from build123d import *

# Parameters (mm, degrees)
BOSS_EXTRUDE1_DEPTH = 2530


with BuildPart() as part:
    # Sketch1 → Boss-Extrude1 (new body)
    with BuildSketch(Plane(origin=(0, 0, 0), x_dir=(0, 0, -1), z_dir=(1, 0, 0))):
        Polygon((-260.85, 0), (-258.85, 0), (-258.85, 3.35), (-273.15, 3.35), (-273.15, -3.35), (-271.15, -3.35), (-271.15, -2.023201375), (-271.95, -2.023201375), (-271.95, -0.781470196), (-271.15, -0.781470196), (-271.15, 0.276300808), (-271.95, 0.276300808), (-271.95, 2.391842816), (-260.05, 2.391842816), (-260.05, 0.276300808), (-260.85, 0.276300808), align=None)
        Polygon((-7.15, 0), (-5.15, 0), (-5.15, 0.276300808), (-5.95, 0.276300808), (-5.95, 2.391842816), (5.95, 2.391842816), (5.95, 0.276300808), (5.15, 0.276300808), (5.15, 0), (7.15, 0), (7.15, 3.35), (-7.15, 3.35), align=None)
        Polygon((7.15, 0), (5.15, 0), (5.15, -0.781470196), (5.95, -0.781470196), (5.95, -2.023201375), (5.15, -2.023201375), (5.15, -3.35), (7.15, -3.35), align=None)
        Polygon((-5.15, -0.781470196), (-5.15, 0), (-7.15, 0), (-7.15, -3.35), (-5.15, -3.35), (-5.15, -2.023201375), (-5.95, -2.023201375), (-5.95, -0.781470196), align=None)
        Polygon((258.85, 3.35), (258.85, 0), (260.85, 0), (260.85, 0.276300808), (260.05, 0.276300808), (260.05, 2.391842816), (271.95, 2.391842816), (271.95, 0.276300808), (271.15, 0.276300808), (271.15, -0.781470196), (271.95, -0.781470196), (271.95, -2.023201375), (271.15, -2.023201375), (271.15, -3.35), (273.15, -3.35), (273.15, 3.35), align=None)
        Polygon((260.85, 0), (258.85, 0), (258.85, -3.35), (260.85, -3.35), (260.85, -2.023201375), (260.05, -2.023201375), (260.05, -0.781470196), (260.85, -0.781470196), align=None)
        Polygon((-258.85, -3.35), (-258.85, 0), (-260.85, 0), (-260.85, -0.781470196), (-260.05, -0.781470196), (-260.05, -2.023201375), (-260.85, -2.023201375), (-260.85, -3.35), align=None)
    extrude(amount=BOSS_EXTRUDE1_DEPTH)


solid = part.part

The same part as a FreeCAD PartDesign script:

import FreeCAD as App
import Part
import Sketcher
Q = App.Units.Quantity

doc = App.newDocument("Part")
body = doc.addObject("PartDesign::Body", "Body")
body.AllowCompound = True

sketch1 = doc.addObject("Sketcher::SketchObject", "Sketch")
body.addObject(sketch1)
sketch1.AttachmentSupport = (doc.YZ_Plane, [""])
sketch1.MapMode = "FlatFace"
sketch1.addGeometry(Part.LineSegment(App.Vector(3.4, 258.9, 0), App.Vector(3.4, 273.1, 0)), False)
sketch1.addGeometry(Part.LineSegment(App.Vector(3.4, 273.1, 0), App.Vector(-3.4, 273.1, 0)), False)
sketch1.addGeometry(Part.LineSegment(App.Vector(-3.4, 273.1, 0), App.Vector(-3.4, 271.1, 0)), False)
sketch1.addGeometry(Part.LineSegment(App.Vector(-3.4, 271.1, 0), App.Vector(-2, 271.1, 0)), False)
sketch1.addGeometry(Part.LineSegment(App.Vector(-2, 271.1, 0), App.Vector(-2, 271.9, 0)), False)
sketch1.addGeometry(Part.LineSegment(App.Vector(-2, 271.9, 0), App.Vector(-0.8, 271.9, 0)), False)
sketch1.addGeometry(Part.LineSegment(App.Vector(-0.8, 271.9, 0), App.Vector(-0.8, 271.1, 0)), False)
sketch1.addGeometry(Part.LineSegment(App.Vector(-0.8, 271.1, 0), App.Vector(0.3, 271.1, 0)), False)
sketch1.addGeometry(Part.LineSegment(App.Vector(0.3, 271.1, 0), App.Vector(0.3, 271.9, 0)), False)
sketch1.addGeometry(Part.LineSegment(App.Vector(0.3, 271.9, 0), App.Vector(2.4, 271.9, 0)), False)
sketch1.addGeometry(Part.LineSegment(App.Vector(2.4, 271.9, 0), App.Vector(2.4, 260.1, 0)), False)
sketch1.addGeometry(Part.LineSegment(App.Vector(2.4, 260.1, 0), App.Vector(0.3, 260.1, 0)), False)
sketch1.addGeometry(Part.LineSegment(App.Vector(0.3, 260.1, 0), App.Vector(0.3, 260.9, 0)), False)
sketch1.addGeometry(Part.LineSegment(App.Vector(0.3, 260.9, 0), App.Vector(-0.8, 260.9, 0)), False)
sketch1.addGeometry(Part.LineSegment(App.Vector(-0.8, 260.9, 0), App.Vector(-0.8, 260.1, 0)), False)
sketch1.addGeometry(Part.LineSegment(App.Vector(-0.8, 260.1, 0), App.Vector(-2, 260.1, 0)), False)
sketch1.addGeometry(Part.LineSegment(App.Vector(-2, 260.1, 0), App.Vector(-2, 260.9, 0)), False)
sketch1.addGeometry(Part.LineSegment(App.Vector(-2, 260.9, 0), App.Vector(-3.4, 260.9, 0)), False)
sketch1.addGeometry(Part.LineSegment(App.Vector(-3.4, 260.9, 0), App.Vector(-3.4, 258.9, 0)), False)
sketch1.addGeometry(Part.LineSegment(App.Vector(-3.4, 258.9, 0), App.Vector(3.4, 258.9, 0)), False)
sketch1.addGeometry(Part.LineSegment(App.Vector(0.3, 5.2, 0), App.Vector(0.3, 6, 0)), False)
sketch1.addGeometry(Part.LineSegment(App.Vector(0.3, 6, 0), App.Vector(2.4, 6, 0)), False)
sketch1.addGeometry(Part.LineSegment(App.Vector(2.4, 6, 0), App.Vector(2.4, -6, 0)), False)
sketch1.addGeometry(Part.LineSegment(App.Vector(2.4, -6, 0), App.Vector(0.3, -6, 0)), False)
sketch1.addGeometry(Part.LineSegment(App.Vector(0.3, -6, 0), App.Vector(0.3, -5.2, 0)), False)
sketch1.addGeometry(Part.LineSegment(App.Vector(0.3, -5.2, 0), App.Vector(-0.8, -5.2, 0)), False)
sketch1.addGeometry(Part.LineSegment(App.Vector(-0.8, -5.2, 0), App.Vector(-0.8, -6, 0)), False)
sketch1.addGeometry(Part.LineSegment(App.Vector(-0.8, -6, 0), App.Vector(-2, -6, 0)), False)
sketch1.addGeometry(Part.LineSegment(App.Vector(-2, -6, 0), App.Vector(-2, -5.2, 0)), False)
sketch1.addGeometry(Part.LineSegment(App.Vector(-2, -5.2, 0), App.Vector(-3.4, -5.2, 0)), False)
sketch1.addGeometry(Part.LineSegment(App.Vector(-3.4, -5.2, 0), App.Vector(-3.4, -7.2, 0)), False)
sketch1.addGeometry(Part.LineSegment(App.Vector(-3.4, -7.2, 0), App.Vector(3.4, -7.2, 0)), False)
sketch1.addGeometry(Part.LineSegment(App.Vector(3.4, -7.2, 0), App.Vector(3.4, 7.2, 0)), False)
sketch1.addGeometry(Part.LineSegment(App.Vector(3.4, 7.2, 0), App.Vector(-3.4, 7.2, 0)), False)
sketch1.addGeometry(Part.LineSegment(App.Vector(-3.4, 7.2, 0), App.Vector(-3.4, 5.2, 0)), False)
sketch1.addGeometry(Part.LineSegment(App.Vector(-3.4, 5.2, 0), App.Vector(-2, 5.2, 0)), False)
sketch1.addGeometry(Part.LineSegment(App.Vector(-2, 5.2, 0), App.Vector(-2, 6, 0)), False)
sketch1.addGeometry(Part.LineSegment(App.Vector(-2, 6, 0), App.Vector(-0.8, 6, 0)), False)
sketch1.addGeometry(Part.LineSegment(App.Vector(-0.8, 6, 0), App.Vector(-0.8, 5.2, 0)), False)
sketch1.addGeometry(Part.LineSegment(App.Vector(-0.8, 5.2, 0), App.Vector(0.3, 5.2, 0)), False)
sketch1.addGeometry(Part.LineSegment(App.Vector(3.4, -258.9, 0), App.Vector(-3.4, -258.9, 0)), False)
sketch1.addGeometry(Part.LineSegment(App.Vector(-3.4, -258.9, 0), App.Vector(-3.4, -260.9, 0)), False)
sketch1.addGeometry(Part.LineSegment(App.Vector(-3.4, -260.9, 0), App.Vector(-2, -260.9, 0)), False)
sketch1.addGeometry(Part.LineSegment(App.Vector(-2, -260.9, 0), App.Vector(-2, -260.1, 0)), False)
sketch1.addGeometry(Part.LineSegment(App.Vector(-2, -260.1, 0), App.Vector(-0.8, -260.1, 0)), False)
sketch1.addGeometry(Part.LineSegment(App.Vector(-0.8, -260.1, 0), App.Vector(-0.8, -260.9, 0)), False)
sketch1.addGeometry(Part.LineSegment(App.Vector(-0.8, -260.9, 0), App.Vector(0.3, -260.9, 0)), False)
sketch1.addGeometry(Part.LineSegment(App.Vector(0.3, -260.9, 0), App.Vector(0.3, -260.1, 0)), False)
sketch1.addGeometry(Part.LineSegment(App.Vector(0.3, -260.1, 0), App.Vector(2.4, -260.1, 0)), False)
sketch1.addGeometry(Part.LineSegment(App.Vector(2.4, -260.1, 0), App.Vector(2.4, -271.9, 0)), False)
sketch1.addGeometry(Part.LineSegment(App.Vector(2.4, -271.9, 0), App.Vector(0.3, -271.9, 0)), False)
sketch1.addGeometry(Part.LineSegment(App.Vector(0.3, -271.9, 0), App.Vector(0.3, -271.1, 0)), False)
sketch1.addGeometry(Part.LineSegment(App.Vector(0.3, -271.1, 0), App.Vector(-0.8, -271.1, 0)), False)
sketch1.addGeometry(Part.LineSegment(App.Vector(-0.8, -271.1, 0), App.Vector(-0.8, -271.9, 0)), False)
sketch1.addGeometry(Part.LineSegment(App.Vector(-0.8, -271.9, 0), App.Vector(-2, -271.9, 0)), False)
sketch1.addGeometry(Part.LineSegment(App.Vector(-2, -271.9, 0), App.Vector(-2, -271.1, 0)), False)
sketch1.addGeometry(Part.LineSegment(App.Vector(-2, -271.1, 0), App.Vector(-3.4, -271.1, 0)), False)
sketch1.addGeometry(Part.LineSegment(App.Vector(-3.4, -271.1, 0), App.Vector(-3.4, -273.1, 0)), False)
sketch1.addGeometry(Part.LineSegment(App.Vector(-3.4, -273.1, 0), App.Vector(3.4, -273.1, 0)), False)
sketch1.addGeometry(Part.LineSegment(App.Vector(3.4, -273.1, 0), App.Vector(3.4, -258.9, 0)), False)
sketch1.addConstraint(Sketcher.Constraint("Coincident", 0, 2, 1, 1))
sketch1.addConstraint(Sketcher.Constraint("Coincident", 1, 2, 2, 1))
sketch1.addConstraint(Sketcher.Constraint("Coincident", 2, 2, 3, 1))
sketch1.addConstraint(Sketcher.Constraint("Coincident", 3, 2, 4, 1))
sketch1.addConstraint(Sketcher.Constraint("Coincident", 4, 2, 5, 1))
sketch1.addConstraint(Sketcher.Constraint("Coincident", 5, 2, 6, 1))
sketch1.addConstraint(Sketcher.Constraint("Coincident", 6, 2, 7, 1))
sketch1.addConstraint(Sketcher.Constraint("Coincident", 7, 2, 8, 1))
sketch1.addConstraint(Sketcher.Constraint("Coincident", 8, 2, 9, 1))
sketch1.addConstraint(Sketcher.Constraint("Coincident", 9, 2, 10, 1))
sketch1.addConstraint(Sketcher.Constraint("Coincident", 10, 2, 11, 1))
sketch1.addConstraint(Sketcher.Constraint("Coincident", 11, 2, 12, 1))
sketch1.addConstraint(Sketcher.Constraint("Coincident", 12, 2, 13, 1))
sketch1.addConstraint(Sketcher.Constraint("Coincident", 13, 2, 14, 1))
sketch1.addConstraint(Sketcher.Constraint("Coincident", 14, 2, 15, 1))
sketch1.addConstraint(Sketcher.Constraint("Coincident", 15, 2, 16, 1))
sketch1.addConstraint(Sketcher.Constraint("Coincident", 16, 2, 17, 1))
sketch1.addConstraint(Sketcher.Constraint("Coincident", 17, 2, 18, 1))
sketch1.addConstraint(Sketcher.Constraint("Coincident", 18, 2, 19, 1))
sketch1.addConstraint(Sketcher.Constraint("Coincident", 19, 2, 0, 1))
sketch1.addConstraint(Sketcher.Constraint("Coincident", 20, 2, 21, 1))
sketch1.addConstraint(Sketcher.Constraint("Coincident", 21, 2, 22, 1))
sketch1.addConstraint(Sketcher.Constraint("Coincident", 22, 2, 23, 1))
sketch1.addConstraint(Sketcher.Constraint("Coincident", 23, 2, 24, 1))
sketch1.addConstraint(Sketcher.Constraint("Coincident", 24, 2, 25, 1))
sketch1.addConstraint(Sketcher.Constraint("Coincident", 25, 2, 26, 1))
sketch1.addConstraint(Sketcher.Constraint("Coincident", 26, 2, 27, 1))
sketch1.addConstraint(Sketcher.Constraint("Coincident", 27, 2, 28, 1))
sketch1.addConstraint(Sketcher.Constraint("Coincident", 28, 2, 29, 1))
sketch1.addConstraint(Sketcher.Constraint("Coincident", 29, 2, 30, 1))
sketch1.addConstraint(Sketcher.Constraint("Coincident", 30, 2, 31, 1))
sketch1.addConstraint(Sketcher.Constraint("Coincident", 31, 2, 32, 1))
sketch1.addConstraint(Sketcher.Constraint("Coincident", 32, 2, 33, 1))
sketch1.addConstraint(Sketcher.Constraint("Coincident", 33, 2, 34, 1))
sketch1.addConstraint(Sketcher.Constraint("Coincident", 34, 2, 35, 1))
sketch1.addConstraint(Sketcher.Constraint("Coincident", 35, 2, 36, 1))
sketch1.addConstraint(Sketcher.Constraint("Coincident", 36, 2, 37, 1))
sketch1.addConstraint(Sketcher.Constraint("Coincident", 37, 2, 38, 1))
sketch1.addConstraint(Sketcher.Constraint("Coincident", 38, 2, 39, 1))
sketch1.addConstraint(Sketcher.Constraint("Coincident", 39, 2, 20, 1))
sketch1.addConstraint(Sketcher.Constraint("Coincident", 40, 2, 41, 1))
sketch1.addConstraint(Sketcher.Constraint("Coincident", 41, 2, 42, 1))
sketch1.addConstraint(Sketcher.Constraint("Coincident", 42, 2, 43, 1))
sketch1.addConstraint(Sketcher.Constraint("Coincident", 43, 2, 44, 1))
sketch1.addConstraint(Sketcher.Constraint("Coincident", 44, 2, 45, 1))
sketch1.addConstraint(Sketcher.Constraint("Coincident", 45, 2, 46, 1))
sketch1.addConstraint(Sketcher.Constraint("Coincident", 46, 2, 47, 1))
sketch1.addConstraint(Sketcher.Constraint("Coincident", 47, 2, 48, 1))
sketch1.addConstraint(Sketcher.Constraint("Coincident", 48, 2, 49, 1))
sketch1.addConstraint(Sketcher.Constraint("Coincident", 49, 2, 50, 1))
sketch1.addConstraint(Sketcher.Constraint("Coincident", 50, 2, 51, 1))
sketch1.addConstraint(Sketcher.Constraint("Coincident", 51, 2, 52, 1))
sketch1.addConstraint(Sketcher.Constraint("Coincident", 52, 2, 53, 1))
sketch1.addConstraint(Sketcher.Constraint("Coincident", 53, 2, 54, 1))
sketch1.addConstraint(Sketcher.Constraint("Coincident", 54, 2, 55, 1))
sketch1.addConstraint(Sketcher.Constraint("Coincident", 55, 2, 56, 1))
sketch1.addConstraint(Sketcher.Constraint("Coincident", 56, 2, 57, 1))
sketch1.addConstraint(Sketcher.Constraint("Coincident", 57, 2, 58, 1))
sketch1.addConstraint(Sketcher.Constraint("Coincident", 58, 2, 59, 1))
sketch1.addConstraint(Sketcher.Constraint("Coincident", 59, 2, 40, 1))
sketch1.addConstraint(Sketcher.Constraint("Vertical", 0))
sketch1.addConstraint(Sketcher.Constraint("Horizontal", 1))
sketch1.addConstraint(Sketcher.Constraint("Vertical", 2))
sketch1.addConstraint(Sketcher.Constraint("Horizontal", 3))
sketch1.addConstraint(Sketcher.Constraint("Vertical", 4))
sketch1.addConstraint(Sketcher.Constraint("Horizontal", 5))
sketch1.addConstraint(Sketcher.Constraint("Vertical", 6))
sketch1.addConstraint(Sketcher.Constraint("Horizontal", 7))
sketch1.addConstraint(Sketcher.Constraint("Vertical", 8))
sketch1.addConstraint(Sketcher.Constraint("Horizontal", 9))
sketch1.addConstraint(Sketcher.Constraint("Vertical", 10))
sketch1.addConstraint(Sketcher.Constraint("Horizontal", 11))
sketch1.addConstraint(Sketcher.Constraint("Vertical", 12))
sketch1.addConstraint(Sketcher.Constraint("Horizontal", 13))
sketch1.addConstraint(Sketcher.Constraint("Vertical", 14))
sketch1.addConstraint(Sketcher.Constraint("Horizontal", 15))
sketch1.addConstraint(Sketcher.Constraint("Vertical", 16))
sketch1.addConstraint(Sketcher.Constraint("Horizontal", 17))
sketch1.addConstraint(Sketcher.Constraint("Vertical", 18))
sketch1.addConstraint(Sketcher.Constraint("Horizontal", 19))
sketch1.addConstraint(Sketcher.Constraint("Vertical", 20))
sketch1.addConstraint(Sketcher.Constraint("Horizontal", 21))
sketch1.addConstraint(Sketcher.Constraint("Vertical", 22))
sketch1.addConstraint(Sketcher.Constraint("Horizontal", 23))
sketch1.addConstraint(Sketcher.Constraint("Vertical", 24))
sketch1.addConstraint(Sketcher.Constraint("Horizontal", 25))
sketch1.addConstraint(Sketcher.Constraint("Vertical", 26))
sketch1.addConstraint(Sketcher.Constraint("Horizontal", 27))
sketch1.addConstraint(Sketcher.Constraint("Vertical", 28))
sketch1.addConstraint(Sketcher.Constraint("Horizontal", 29))
sketch1.addConstraint(Sketcher.Constraint("Vertical", 30))
sketch1.addConstraint(Sketcher.Constraint("Horizontal", 31))
sketch1.addConstraint(Sketcher.Constraint("Vertical", 32))
sketch1.addConstraint(Sketcher.Constraint("Horizontal", 33))
sketch1.addConstraint(Sketcher.Constraint("Vertical", 34))
sketch1.addConstraint(Sketcher.Constraint("Horizontal", 35))
sketch1.addConstraint(Sketcher.Constraint("Vertical", 36))
sketch1.addConstraint(Sketcher.Constraint("Horizontal", 37))
sketch1.addConstraint(Sketcher.Constraint("Vertical", 38))
sketch1.addConstraint(Sketcher.Constraint("Horizontal", 39))
sketch1.addConstraint(Sketcher.Constraint("Horizontal", 40))
sketch1.addConstraint(Sketcher.Constraint("Vertical", 41))
sketch1.addConstraint(Sketcher.Constraint("Horizontal", 42))
sketch1.addConstraint(Sketcher.Constraint("Vertical", 43))
sketch1.addConstraint(Sketcher.Constraint("Horizontal", 44))
sketch1.addConstraint(Sketcher.Constraint("Vertical", 45))
sketch1.addConstraint(Sketcher.Constraint("Horizontal", 46))
sketch1.addConstraint(Sketcher.Constraint("Vertical", 47))
sketch1.addConstraint(Sketcher.Constraint("Horizontal", 48))
sketch1.addConstraint(Sketcher.Constraint("Vertical", 49))
sketch1.addConstraint(Sketcher.Constraint("Horizontal", 50))
sketch1.addConstraint(Sketcher.Constraint("Vertical", 51))
sketch1.addConstraint(Sketcher.Constraint("Horizontal", 52))
sketch1.addConstraint(Sketcher.Constraint("Vertical", 53))
sketch1.addConstraint(Sketcher.Constraint("Horizontal", 54))
sketch1.addConstraint(Sketcher.Constraint("Vertical", 55))
sketch1.addConstraint(Sketcher.Constraint("Horizontal", 56))
sketch1.addConstraint(Sketcher.Constraint("Vertical", 57))
sketch1.addConstraint(Sketcher.Constraint("Horizontal", 58))
sketch1.addConstraint(Sketcher.Constraint("Vertical", 59))
sketch1.addConstraint(Sketcher.Constraint("Symmetric", 30, 2, 32, 2, -1, 1))
sketch1.addConstraint(Sketcher.Constraint("Symmetric", 19, 2, 40, 2, -1, 1))
sketch1.addConstraint(Sketcher.Constraint("Symmetric", 0, 2, 57, 2, -1, 1))
sketch1.addConstraint(Sketcher.Constraint("Symmetric", 20, 2, 23, 2, -1))
sketch1.addConstraint(Sketcher.Constraint("Symmetric", 29, 2, 34, 2, -1))
sketch1.addConstraint(Sketcher.Constraint("Symmetric", 27, 2, 36, 2, -1))
sketch1.addConstraint(Sketcher.Constraint("Symmetric", 25, 2, 38, 2, -1))
sketch1.addConstraint(Sketcher.Constraint("Symmetric", 17, 2, 41, 2, -1))
sketch1.addConstraint(Sketcher.Constraint("Symmetric", 15, 2, 43, 2, -1))
sketch1.addConstraint(Sketcher.Constraint("Symmetric", 13, 2, 45, 2, -1))
sketch1.addConstraint(Sketcher.Constraint("Symmetric", 11, 2, 47, 2, -1))
sketch1.addConstraint(Sketcher.Constraint("Symmetric", 9, 2, 49, 2, -1))
sketch1.addConstraint(Sketcher.Constraint("Symmetric", 7, 2, 51, 2, -1))
sketch1.addConstraint(Sketcher.Constraint("Symmetric", 5, 2, 53, 2, -1))
sketch1.addConstraint(Sketcher.Constraint("Symmetric", 3, 2, 55, 2, -1))
sketch1.addConstraint(Sketcher.Constraint("Horizontal", 3, 2, 6, 2))
sketch1.addConstraint(Sketcher.Constraint("Horizontal", 5, 2, 8, 2))
sketch1.addConstraint(Sketcher.Constraint("Horizontal", 11, 2, 14, 2))
sketch1.addConstraint(Sketcher.Constraint("Horizontal", 13, 2, 16, 2))
sketch1.addConstraint(Sketcher.Constraint("Horizontal", 23, 2, 26, 2))
sketch1.addConstraint(Sketcher.Constraint("Horizontal", 25, 2, 28, 2))
sketch1.addConstraint(Sketcher.Constraint("Vertical", 8, 2, 11, 2))
sketch1.addConstraint(Sketcher.Constraint("Vertical", 6, 2, 13, 2))
sketch1.addConstraint(Sketcher.Constraint("Vertical", 4, 2, 15, 2))
sketch1.addConstraint(Sketcher.Constraint("Vertical", 2, 2, 17, 2))
sketch1.addConstraint(Sketcher.Constraint("Vertical", 12, 2, 20, 2))
sketch1.addConstraint(Sketcher.Constraint("Vertical", 10, 2, 21, 2))
sketch1.addConstraint(Sketcher.Constraint("Vertical", 14, 2, 25, 2))
sketch1.addConstraint(Sketcher.Constraint("Vertical", 16, 2, 27, 2))
sketch1.addConstraint(Sketcher.Constraint("Vertical", 18, 2, 29, 2))
sketch1.addConstraint(Sketcher.Constraint("Vertical", 32, 2, 58, 2))
sketch1.addConstraint(Sketcher.Constraint("Equal", 8, 12))
sketch1.addConstraint(Sketcher.Constraint("Equal", 2, 18))
sketch1.addConstraint(Sketcher.Constraint("Equal", 16, 20))
sketch1.addConstraint(Sketcher.Constraint("Equal", 10, 22))
sketch1.addConstraint(Sketcher.Constraint("Equal", 18, 30))
sketch1.addConstraint(Sketcher.Constraint("DistanceY", 2, 2, 2, 1, Q("2 mm")))
sketch1.addConstraint(Sketcher.Constraint("DistanceX", 1, 2, 1, 1, Q("6.7 mm")))
sketch1.addConstraint(Sketcher.Constraint("DistanceY", 0, 1, 0, 2, Q("14.3 mm")))
sketch1.addConstraint(Sketcher.Constraint("DistanceY", 4, 1, 4, 2, Q("0.8 mm")))
sketch1.addConstraint(Sketcher.Constraint("DistanceY", 22, 2, 10, 2, Q("266 mm")))
sketch1.addConstraint(Sketcher.Constraint("DistanceX", 3, 1, 3, 2, Q("1.326799 mm")))
sketch1.addConstraint(Sketcher.Constraint("DistanceX", 5, 1, 5, 2, Q("1.241731 mm")))
sketch1.addConstraint(Sketcher.Constraint("DistanceX", 7, 1, 7, 2, Q("1.057771 mm")))
sketch1.addConstraint(Sketcher.Constraint("DistanceX", 9, 1, 9, 2, Q("2.115542 mm")))
pad1 = doc.addObject("PartDesign::Pad", "Pad")
body.addObject(pad1)
pad1.Profile = sketch1
pad1.Length = 2530

doc.recompute()
